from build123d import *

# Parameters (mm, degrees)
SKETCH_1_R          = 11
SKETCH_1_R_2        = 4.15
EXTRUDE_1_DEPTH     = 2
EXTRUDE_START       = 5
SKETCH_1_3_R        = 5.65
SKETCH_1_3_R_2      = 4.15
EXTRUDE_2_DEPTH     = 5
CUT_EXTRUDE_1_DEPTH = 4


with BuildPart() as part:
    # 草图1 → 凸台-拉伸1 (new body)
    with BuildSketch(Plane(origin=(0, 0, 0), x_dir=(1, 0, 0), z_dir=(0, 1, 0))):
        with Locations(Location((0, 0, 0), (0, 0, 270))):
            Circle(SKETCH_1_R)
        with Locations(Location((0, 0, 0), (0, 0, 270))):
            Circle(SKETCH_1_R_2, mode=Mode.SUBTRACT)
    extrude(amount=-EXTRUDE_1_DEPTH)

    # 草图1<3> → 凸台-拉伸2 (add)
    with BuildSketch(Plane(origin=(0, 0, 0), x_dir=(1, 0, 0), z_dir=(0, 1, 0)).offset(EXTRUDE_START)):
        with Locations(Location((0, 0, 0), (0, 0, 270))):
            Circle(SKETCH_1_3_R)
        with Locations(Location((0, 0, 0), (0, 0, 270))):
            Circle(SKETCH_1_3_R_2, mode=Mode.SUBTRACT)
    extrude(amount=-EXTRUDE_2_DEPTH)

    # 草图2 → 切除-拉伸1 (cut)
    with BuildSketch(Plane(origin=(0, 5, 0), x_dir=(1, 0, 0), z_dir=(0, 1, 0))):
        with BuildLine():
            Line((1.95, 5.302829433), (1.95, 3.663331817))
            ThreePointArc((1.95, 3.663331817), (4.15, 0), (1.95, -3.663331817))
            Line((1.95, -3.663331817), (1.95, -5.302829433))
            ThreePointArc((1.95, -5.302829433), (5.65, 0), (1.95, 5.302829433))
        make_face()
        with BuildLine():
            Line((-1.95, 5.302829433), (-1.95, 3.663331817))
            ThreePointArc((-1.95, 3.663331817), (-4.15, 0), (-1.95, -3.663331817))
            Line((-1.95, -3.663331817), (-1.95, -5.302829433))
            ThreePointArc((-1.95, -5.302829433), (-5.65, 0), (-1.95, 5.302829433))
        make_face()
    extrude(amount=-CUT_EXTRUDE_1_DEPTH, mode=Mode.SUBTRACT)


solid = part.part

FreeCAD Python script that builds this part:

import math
import FreeCAD as App
import Part
import Sketcher
Q = App.Units.Quantity

doc = App.newDocument("Part")
params = doc.addObject("Spreadsheet::Sheet", "Params")
for row, (alias, value) in enumerate([
    ("sketch1_diameter", "22 mm"),
    ("sketch1_diameter2", "8.3 mm"),
    ("pad1_length", "2 mm"),
    ("sketch2_diameter", "11.3 mm"),
    ("sketch2_diameter2", "8.3 mm"),
    ("pad2_length", "5 mm"),
    ("sketch3_radius", "4.15 mm"),
    ("sketch3_radius2", "5.65 mm"),
    ("pocket1_length", "4 mm"),
], start=1):
    params.set(f"A{row}", alias)
    params.set(f"B{row}", "=" + value)
    params.setAlias(f"B{row}", alias)

body = doc.addObject("PartDesign::Body", "Body")

sketch1 = body.newObject("Sketcher::SketchObject", "Sketch")
sketch1.AttachmentSupport = (doc.getObject("XZ_Plane"), [""])
sketch1.MapMode = "FlatFace"
sketch1.addGeometry(Part.Circle(App.Vector(0, 0, 0), App.Vector(0, 0, 1), 11), False)
sketch1.addGeometry(Part.Circle(App.Vector(0, 0, 0), App.Vector(0, 0, 1), 4.2), False)
sketch1.addConstraint(Sketcher.Constraint("Coincident", 0, 3, -1, 1))
sketch1.addConstraint(Sketcher.Constraint("Coincident", 1, 3, -1, 1))
sketch1.addConstraint(Sketcher.Constraint("Diameter", 0, Q("22 mm")))
sketch1.addConstraint(Sketcher.Constraint("Diameter", 1, Q("8.3 mm")))
sketch1.setExpression("Constraints[2]", "Params.sketch1_diameter")
sketch1.setExpression("Constraints[3]", "Params.sketch1_diameter2")
pad1 = body.newObject("PartDesign::Pad", "Pad")
pad1.Profile = sketch1
pad1.setExpression("Length", "Params.pad1_length")

sketch2 = body.newObject("Sketcher::SketchObject", "Sketch001")
sketch2.AttachmentSupport = (doc.getObject("XZ_Plane"), [""])
sketch2.MapMode = "FlatFace"
sketch2.AttachmentOffset = App.Placement(App.Vector(0, 0, -5), App.Rotation())
sketch2.addGeometry(Part.Circle(App.Vector(0, 0, 0), App.Vector(0, 0, 1), 5.7), False)
sketch2.addGeometry(Part.Circle(App.Vector(0, 0, 0), App.Vector(0, 0, 1), 4.2), False)
sketch2.addConstraint(Sketcher.Constraint("Coincident", 0, 3, -1, 1))
sketch2.addConstraint(Sketcher.Constraint("Coincident", 1, 3, -1, 1))
sketch2.addConstraint(Sketcher.Constraint("Diameter", 0, Q("11.3 mm")))
sketch2.addConstraint(Sketcher.Constraint("Diameter", 1, Q("8.3 mm")))
sketch2.setExpression("Constraints[2]", "Params.sketch2_diameter")
sketch2.setExpression("Constraints[3]", "Params.sketch2_diameter2")
pad2 = body.newObject("PartDesign::Pad", "Pad001")
pad2.Profile = sketch2
pad2.setExpression("Length", "Params.pad2_length")

sketch3 = body.newObject("Sketcher::SketchObject", "Sketch002")
sketch3.AttachmentSupport = (doc.getObject("XZ_Plane"), [""])
sketch3.MapMode = "FlatFace"
sketch3.AttachmentOffset = App.Placement(App.Vector(0, 0, -5), App.Rotation())
sketch3.addGeometry(Part.LineSegment(App.Vector(1.9, -5.3, 0), App.Vector(1.9, -3.7, 0)), False)
sketch3.addGeometry(Part.ArcOfCircle(Part.Circle(App.Vector(0, 0, 0), App.Vector(0, 0, 1), 4.2), math.radians(-62), math.radians(62)), False)
sketch3.addGeometry(Part.LineSegment(App.Vector(1.9, 3.7, 0), App.Vector(1.9, 5.3, 0)), False)
sketch3.addGeometry(Part.ArcOfCircle(Part.Circle(App.Vector(0, 0, 0), App.Vector(0, 0, 1), 5.6), math.radians(-70), math.radians(70)), False)
sketch3.addGeometry(Part.LineSegment(App.Vector(-1.9, -3.7, 0), App.Vector(-1.9, -5.3, 0)), False)
sketch3.addGeometry(Part.ArcOfCircle(Part.Circle(App.Vector(0, 0, 0), App.Vector(0, 0, 1), 5.6), math.radians(110), math.radians(250)), False)
sketch3.addGeometry(Part.LineSegment(App.Vector(-1.9, 5.3, 0), App.Vector(-1.9, 3.7, 0)), False)
sketch3.addGeometry(Part.ArcOfCircle(Part.Circle(App.Vector(0, 0, 0), App.Vector(0, 0, 1), 4.2), math.radians(118), math.radians(242)), False)
sketch3.addConstraint(Sketcher.Constraint("Coincident", 0, 2, 1, 1))
sketch3.addConstraint(Sketcher.Constraint("Coincident", 1, 2, 2, 1))
sketch3.addConstraint(Sketcher.Constraint("Coincident", 2, 2, 3, 2))
sketch3.addConstraint(Sketcher.Constraint("Coincident", 3, 1, 0, 1))
sketch3.addConstraint(Sketcher.Constraint("Coincident", 4, 2, 5, 2))
sketch3.addConstraint(Sketcher.Constraint("Coincident", 5, 1, 6, 1))
sketch3.addConstraint(Sketcher.Constraint("Coincident", 6, 2, 7, 1))
sketch3.addConstraint(Sketcher.Constraint("Coincident", 7, 2, 4, 1))
sketch3.addConstraint(Sketcher.Constraint("Vertical", 0))
sketch3.addConstraint(Sketcher.Constraint("Vertical", 2))
sketch3.addConstraint(Sketcher.Constraint("Vertical", 4))
sketch3.addConstraint(Sketcher.Constraint("Vertical", 6))
sketch3.addConstraint(Sketcher.Constraint("Coincident", 1, 3, -1, 1))
sketch3.addConstraint(Sketcher.Constraint("Coincident", 3, 3, -1, 1))
sketch3.addConstraint(Sketcher.Constraint("Coincident", 5, 3, -1, 1))
sketch3.addConstraint(Sketcher.Constraint("Coincident", 7, 3, -1, 1))
sketch3.addConstraint(Sketcher.Constraint("Equal", 3, 5))
sketch3.addConstraint(Sketcher.Constraint("Equal", 1, 7))
sketch3.addConstraint(Sketcher.Constraint("Horizontal", 3, 1, 4, 2))
sketch3.addConstraint(Sketcher.Constraint("Horizontal", 2, 2, 5, 1))
sketch3.addConstraint(Sketcher.Constraint("Vertical", 0, 2, 1, 2))
sketch3.addConstraint(Sketcher.Constraint("Radius", 1, Q("4.15 mm")))
sketch3.addConstraint(Sketcher.Constraint("Radius", 3, Q("5.65 mm")))
sketch3.addConstraint(Sketcher.Constraint("DistanceX", 4, 2, 3, 1, Q("3.9 mm")))
sketch3.setExpression("Constraints[21]", "Params.sketch3_radius")
sketch3.setExpression("Constraints[22]", "Params.sketch3_radius2")
pocket1 = body.newObject("PartDesign::Pocket", "Pocket")
pocket1.Profile = sketch3
pocket1.setExpression("Length", "Params.pocket1_length")
pocket1.Reversed = True

doc.recompute()
